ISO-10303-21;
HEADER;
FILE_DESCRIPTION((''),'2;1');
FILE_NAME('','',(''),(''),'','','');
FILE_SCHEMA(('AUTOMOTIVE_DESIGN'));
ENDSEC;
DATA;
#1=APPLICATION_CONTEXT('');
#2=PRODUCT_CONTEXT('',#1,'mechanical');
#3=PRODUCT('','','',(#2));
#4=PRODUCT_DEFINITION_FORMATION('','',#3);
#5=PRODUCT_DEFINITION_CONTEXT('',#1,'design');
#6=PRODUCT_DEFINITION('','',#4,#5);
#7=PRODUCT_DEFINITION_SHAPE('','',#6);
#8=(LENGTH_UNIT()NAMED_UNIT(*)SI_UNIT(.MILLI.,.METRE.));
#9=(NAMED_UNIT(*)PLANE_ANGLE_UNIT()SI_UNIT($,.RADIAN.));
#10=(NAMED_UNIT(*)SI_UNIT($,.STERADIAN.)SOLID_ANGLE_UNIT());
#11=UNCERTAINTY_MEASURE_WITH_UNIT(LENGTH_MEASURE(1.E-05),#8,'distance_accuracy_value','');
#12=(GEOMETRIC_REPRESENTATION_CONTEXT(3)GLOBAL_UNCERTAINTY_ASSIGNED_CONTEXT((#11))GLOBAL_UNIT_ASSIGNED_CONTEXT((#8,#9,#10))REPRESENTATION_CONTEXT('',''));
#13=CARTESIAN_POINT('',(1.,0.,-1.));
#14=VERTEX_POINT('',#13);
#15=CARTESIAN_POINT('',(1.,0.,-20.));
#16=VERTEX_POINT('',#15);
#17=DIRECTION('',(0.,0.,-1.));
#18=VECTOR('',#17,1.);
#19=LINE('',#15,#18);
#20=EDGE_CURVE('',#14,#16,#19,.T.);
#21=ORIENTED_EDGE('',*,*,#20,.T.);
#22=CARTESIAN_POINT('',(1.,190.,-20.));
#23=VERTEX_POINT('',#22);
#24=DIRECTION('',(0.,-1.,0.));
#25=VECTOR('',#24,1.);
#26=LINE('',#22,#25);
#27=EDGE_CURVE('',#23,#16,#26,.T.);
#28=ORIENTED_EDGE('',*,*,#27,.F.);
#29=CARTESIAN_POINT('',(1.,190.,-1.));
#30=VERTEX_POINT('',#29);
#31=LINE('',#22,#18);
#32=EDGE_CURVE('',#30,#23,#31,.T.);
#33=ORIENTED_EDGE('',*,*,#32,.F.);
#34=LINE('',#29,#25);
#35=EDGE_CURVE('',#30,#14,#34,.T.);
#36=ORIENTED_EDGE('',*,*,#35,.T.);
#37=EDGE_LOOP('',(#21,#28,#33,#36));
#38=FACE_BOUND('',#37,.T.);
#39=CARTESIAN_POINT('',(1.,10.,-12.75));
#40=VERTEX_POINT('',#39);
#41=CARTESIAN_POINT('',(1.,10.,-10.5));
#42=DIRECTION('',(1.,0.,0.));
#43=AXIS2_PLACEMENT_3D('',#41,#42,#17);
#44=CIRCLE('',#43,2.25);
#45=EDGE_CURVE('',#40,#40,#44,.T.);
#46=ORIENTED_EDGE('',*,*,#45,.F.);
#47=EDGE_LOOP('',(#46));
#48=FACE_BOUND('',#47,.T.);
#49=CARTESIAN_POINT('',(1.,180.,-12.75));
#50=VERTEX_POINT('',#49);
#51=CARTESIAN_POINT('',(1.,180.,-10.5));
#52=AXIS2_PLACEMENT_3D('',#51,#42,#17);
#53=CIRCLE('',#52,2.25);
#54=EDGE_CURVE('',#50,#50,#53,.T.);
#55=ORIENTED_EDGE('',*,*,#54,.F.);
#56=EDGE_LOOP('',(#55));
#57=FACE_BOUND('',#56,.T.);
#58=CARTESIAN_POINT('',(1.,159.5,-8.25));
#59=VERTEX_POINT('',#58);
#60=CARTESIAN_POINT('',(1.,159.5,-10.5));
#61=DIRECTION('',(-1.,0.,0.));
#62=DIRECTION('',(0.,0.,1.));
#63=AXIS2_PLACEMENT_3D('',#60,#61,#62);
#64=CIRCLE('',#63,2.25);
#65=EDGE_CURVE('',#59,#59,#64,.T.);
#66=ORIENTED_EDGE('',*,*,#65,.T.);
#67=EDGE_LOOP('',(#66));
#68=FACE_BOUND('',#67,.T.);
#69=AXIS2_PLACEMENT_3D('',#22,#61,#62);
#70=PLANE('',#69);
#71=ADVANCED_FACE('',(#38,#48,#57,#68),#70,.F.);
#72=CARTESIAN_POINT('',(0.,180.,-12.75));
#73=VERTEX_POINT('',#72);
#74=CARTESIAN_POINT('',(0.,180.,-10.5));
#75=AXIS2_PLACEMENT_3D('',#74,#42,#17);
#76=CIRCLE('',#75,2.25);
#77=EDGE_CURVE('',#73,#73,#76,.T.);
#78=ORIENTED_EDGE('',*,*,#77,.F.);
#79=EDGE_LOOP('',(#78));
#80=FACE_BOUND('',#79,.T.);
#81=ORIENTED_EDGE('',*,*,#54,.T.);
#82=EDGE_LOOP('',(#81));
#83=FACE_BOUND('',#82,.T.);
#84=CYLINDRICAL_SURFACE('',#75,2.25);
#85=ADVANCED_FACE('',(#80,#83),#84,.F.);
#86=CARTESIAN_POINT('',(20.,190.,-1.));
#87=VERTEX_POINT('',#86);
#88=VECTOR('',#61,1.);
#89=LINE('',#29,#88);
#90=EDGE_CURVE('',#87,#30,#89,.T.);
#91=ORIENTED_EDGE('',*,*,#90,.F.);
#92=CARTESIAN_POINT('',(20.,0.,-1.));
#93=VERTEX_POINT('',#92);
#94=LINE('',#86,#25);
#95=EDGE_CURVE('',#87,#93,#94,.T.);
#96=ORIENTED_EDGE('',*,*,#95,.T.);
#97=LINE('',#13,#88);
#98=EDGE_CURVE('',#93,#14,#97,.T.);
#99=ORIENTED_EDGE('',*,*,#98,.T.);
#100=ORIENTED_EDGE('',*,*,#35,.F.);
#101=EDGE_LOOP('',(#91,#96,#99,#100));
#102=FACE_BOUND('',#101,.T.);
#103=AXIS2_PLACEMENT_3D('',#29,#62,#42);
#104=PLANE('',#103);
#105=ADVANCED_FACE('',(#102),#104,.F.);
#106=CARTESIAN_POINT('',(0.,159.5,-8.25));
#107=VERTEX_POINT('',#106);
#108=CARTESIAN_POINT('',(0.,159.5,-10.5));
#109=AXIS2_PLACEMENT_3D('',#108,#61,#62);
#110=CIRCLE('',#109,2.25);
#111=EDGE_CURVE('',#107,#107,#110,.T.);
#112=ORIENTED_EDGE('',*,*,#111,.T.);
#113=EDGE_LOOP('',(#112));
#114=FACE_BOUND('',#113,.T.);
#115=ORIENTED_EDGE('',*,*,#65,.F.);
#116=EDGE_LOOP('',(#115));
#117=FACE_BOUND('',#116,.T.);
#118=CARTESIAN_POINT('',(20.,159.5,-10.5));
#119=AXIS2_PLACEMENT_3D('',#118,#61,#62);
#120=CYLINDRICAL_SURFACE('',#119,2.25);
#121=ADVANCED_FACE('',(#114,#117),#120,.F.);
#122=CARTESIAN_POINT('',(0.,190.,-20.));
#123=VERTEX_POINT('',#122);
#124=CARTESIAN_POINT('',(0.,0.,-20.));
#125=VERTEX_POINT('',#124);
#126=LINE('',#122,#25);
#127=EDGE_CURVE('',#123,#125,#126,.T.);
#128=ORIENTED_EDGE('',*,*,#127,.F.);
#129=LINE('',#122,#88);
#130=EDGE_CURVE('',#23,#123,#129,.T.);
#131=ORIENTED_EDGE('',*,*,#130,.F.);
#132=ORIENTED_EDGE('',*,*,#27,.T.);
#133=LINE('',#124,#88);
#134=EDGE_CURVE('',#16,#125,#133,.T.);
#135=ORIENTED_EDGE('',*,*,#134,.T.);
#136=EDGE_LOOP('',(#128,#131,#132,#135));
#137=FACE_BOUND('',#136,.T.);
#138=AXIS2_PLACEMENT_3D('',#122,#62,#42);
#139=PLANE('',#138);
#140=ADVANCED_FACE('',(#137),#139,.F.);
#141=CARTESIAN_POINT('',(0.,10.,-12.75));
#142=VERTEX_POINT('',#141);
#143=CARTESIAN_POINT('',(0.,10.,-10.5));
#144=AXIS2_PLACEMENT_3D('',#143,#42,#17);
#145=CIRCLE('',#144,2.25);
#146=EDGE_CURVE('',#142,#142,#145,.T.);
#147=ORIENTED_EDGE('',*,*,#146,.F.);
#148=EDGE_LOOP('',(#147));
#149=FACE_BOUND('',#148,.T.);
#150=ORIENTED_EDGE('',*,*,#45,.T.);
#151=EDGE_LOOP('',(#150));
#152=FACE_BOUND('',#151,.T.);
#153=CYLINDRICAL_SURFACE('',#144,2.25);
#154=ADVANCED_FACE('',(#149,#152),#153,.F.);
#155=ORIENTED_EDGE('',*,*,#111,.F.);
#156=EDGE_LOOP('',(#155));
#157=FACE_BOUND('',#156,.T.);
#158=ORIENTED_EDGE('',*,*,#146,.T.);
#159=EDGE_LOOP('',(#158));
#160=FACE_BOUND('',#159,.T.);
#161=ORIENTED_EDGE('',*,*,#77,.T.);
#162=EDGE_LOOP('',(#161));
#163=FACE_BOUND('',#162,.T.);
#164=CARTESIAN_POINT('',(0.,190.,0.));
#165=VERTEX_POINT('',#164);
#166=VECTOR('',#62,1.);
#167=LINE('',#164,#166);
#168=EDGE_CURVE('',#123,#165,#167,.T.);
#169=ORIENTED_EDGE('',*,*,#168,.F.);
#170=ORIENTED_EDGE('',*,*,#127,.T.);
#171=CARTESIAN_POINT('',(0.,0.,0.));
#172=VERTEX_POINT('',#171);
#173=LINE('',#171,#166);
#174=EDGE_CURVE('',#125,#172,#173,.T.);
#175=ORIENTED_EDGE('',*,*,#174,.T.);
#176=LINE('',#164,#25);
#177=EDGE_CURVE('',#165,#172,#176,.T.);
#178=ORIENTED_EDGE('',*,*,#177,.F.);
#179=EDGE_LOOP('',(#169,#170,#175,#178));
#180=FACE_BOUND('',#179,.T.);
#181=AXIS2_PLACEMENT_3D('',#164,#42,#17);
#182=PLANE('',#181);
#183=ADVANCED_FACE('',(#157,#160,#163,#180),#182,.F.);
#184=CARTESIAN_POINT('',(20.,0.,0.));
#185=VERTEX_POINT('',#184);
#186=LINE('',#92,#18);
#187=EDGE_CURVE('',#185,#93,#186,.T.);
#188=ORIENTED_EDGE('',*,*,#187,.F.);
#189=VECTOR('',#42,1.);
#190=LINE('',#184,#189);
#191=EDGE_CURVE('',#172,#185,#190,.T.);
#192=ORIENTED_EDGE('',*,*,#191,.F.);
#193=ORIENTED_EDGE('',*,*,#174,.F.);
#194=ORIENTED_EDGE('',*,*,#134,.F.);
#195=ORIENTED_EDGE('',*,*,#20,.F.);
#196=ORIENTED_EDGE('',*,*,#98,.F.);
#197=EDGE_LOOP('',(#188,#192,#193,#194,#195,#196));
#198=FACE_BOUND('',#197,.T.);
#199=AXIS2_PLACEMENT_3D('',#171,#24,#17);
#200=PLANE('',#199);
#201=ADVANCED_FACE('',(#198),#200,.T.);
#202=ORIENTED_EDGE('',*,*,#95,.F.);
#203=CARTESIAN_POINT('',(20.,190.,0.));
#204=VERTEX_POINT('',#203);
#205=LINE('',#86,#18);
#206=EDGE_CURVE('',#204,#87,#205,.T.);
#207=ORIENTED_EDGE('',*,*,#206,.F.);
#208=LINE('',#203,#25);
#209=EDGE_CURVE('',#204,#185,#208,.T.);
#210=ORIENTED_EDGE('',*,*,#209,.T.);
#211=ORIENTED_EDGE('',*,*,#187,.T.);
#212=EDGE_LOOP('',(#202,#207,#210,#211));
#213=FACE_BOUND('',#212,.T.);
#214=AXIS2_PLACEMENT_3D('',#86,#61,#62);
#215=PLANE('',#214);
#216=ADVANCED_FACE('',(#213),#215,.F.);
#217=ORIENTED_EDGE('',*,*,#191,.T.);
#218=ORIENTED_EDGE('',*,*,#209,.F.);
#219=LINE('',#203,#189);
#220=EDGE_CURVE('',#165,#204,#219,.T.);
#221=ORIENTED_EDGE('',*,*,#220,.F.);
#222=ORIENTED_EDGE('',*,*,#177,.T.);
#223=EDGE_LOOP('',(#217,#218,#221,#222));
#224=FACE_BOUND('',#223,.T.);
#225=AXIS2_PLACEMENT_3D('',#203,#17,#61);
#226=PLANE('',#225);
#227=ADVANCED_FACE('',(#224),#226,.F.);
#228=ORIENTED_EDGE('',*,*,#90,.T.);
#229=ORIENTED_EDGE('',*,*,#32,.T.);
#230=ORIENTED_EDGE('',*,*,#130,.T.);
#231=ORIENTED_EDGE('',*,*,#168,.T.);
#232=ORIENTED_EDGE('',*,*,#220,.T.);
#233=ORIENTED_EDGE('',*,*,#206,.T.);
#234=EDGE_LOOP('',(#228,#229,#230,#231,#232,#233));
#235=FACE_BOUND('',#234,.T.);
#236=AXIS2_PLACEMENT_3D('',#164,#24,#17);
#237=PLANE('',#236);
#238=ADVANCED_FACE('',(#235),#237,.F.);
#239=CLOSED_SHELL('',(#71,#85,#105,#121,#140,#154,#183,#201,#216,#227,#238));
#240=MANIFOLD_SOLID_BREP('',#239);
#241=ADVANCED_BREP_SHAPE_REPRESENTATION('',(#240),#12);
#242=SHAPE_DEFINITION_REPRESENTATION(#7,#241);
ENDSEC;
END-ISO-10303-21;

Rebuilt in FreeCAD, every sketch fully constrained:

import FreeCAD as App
import Part
import Sketcher

doc = App.newDocument("Part")
body = doc.addObject("PartDesign::Body", "Body")

# Sketch on XZ plane
sketch1 = body.newObject("Sketcher::SketchObject", "Sketch")
sketch1.AttachmentSupport = (doc.getObject("XZ_Plane"), [""])
sketch1.MapMode = "FlatFace"
sketch1.addGeometry(Part.LineSegment(App.Vector(0, -20, 0), App.Vector(0, 0, 0)), False)
sketch1.addGeometry(Part.LineSegment(App.Vector(0, 0, 0), App.Vector(20, 0, 0)), False)
sketch1.addGeometry(Part.LineSegment(App.Vector(20, 0, 0), App.Vector(20, -1, 0)), False)
sketch1.addGeometry(Part.LineSegment(App.Vector(20, -1, 0), App.Vector(1, -1, 0)), False)
sketch1.addGeometry(Part.LineSegment(App.Vector(1, -1, 0), App.Vector(1, -20, 0)), False)
sketch1.addGeometry(Part.LineSegment(App.Vector(1, -20, 0), App.Vector(0, -20, 0)), False)
sketch1.addConstraint(Sketcher.Constraint("Coincident", 0, 2, 1, 1))
sketch1.addConstraint(Sketcher.Constraint("Coincident", 1, 2, 2, 1))
sketch1.addConstraint(Sketcher.Constraint("Coincident", 2, 2, 3, 1))
sketch1.addConstraint(Sketcher.Constraint("Coincident", 3, 2, 4, 1))
sketch1.addConstraint(Sketcher.Constraint("Coincident", 4, 2, 5, 1))
sketch1.addConstraint(Sketcher.Constraint("Coincident", 5, 2, 0, 1))
sketch1.addConstraint(Sketcher.Constraint("Vertical", 0))
sketch1.addConstraint(Sketcher.Constraint("Horizontal", 1))
sketch1.addConstraint(Sketcher.Constraint("Vertical", 2))
sketch1.addConstraint(Sketcher.Constraint("Horizontal", 3))
sketch1.addConstraint(Sketcher.Constraint("Vertical", 4))
sketch1.addConstraint(Sketcher.Constraint("Horizontal", 5))
sketch1.addConstraint(Sketcher.Constraint("Coincident", 0, 2, -1, 1))
sketch1.addConstraint(Sketcher.Constraint("Equal", 1, 0))
sketch1.addConstraint(Sketcher.Constraint("Equal", 5, 2))
sketch1.addConstraint(Sketcher.Constraint("DistanceX", 1, 1, 1, 2, 20.0))
sketch1.addConstraint(Sketcher.Constraint("DistanceX", 3, 2, 3, 1, 19.0))
pad1 = body.newObject("PartDesign::Pad", "Pad")
pad1.Profile = sketch1
pad1.Length = 190
pad1.Reversed = True

# Sketch on YZ plane
sketch2 = body.newObject("Sketcher::SketchObject", "Sketch001")
sketch2.AttachmentSupport = (doc.getObject("YZ_Plane"), [""])
sketch2.MapMode = "FlatFace"
sketch2.AttachmentOffset = App.Placement(App.Vector(0, 0, 1), App.Rotation())
sketch2.addGeometry(Part.Circle(App.Vector(10, -10.5, 0), App.Vector(0, 0, 1), 2.25), False)
sketch2.addGeometry(Part.Circle(App.Vector(180, -10.5, 0), App.Vector(0, 0, 1), 2.25), False)
sketch2.addConstraint(Sketcher.Constraint("Equal", 0, 1))
sketch2.addConstraint(Sketcher.Constraint("Horizontal", 0, 3, 1, 3))
sketch2.addConstraint(Sketcher.Constraint("Diameter", 0, 4.5))
sketch2.addConstraint(Sketcher.Constraint("DistanceX", -1, 1, 0, 3, 10.0))
sketch2.addConstraint(Sketcher.Constraint("DistanceX", -1, 1, 1, 3, 180.0))
sketch2.addConstraint(Sketcher.Constraint("DistanceY", 0, 3, -1, 1, 10.5))
pocket1 = body.newObject("PartDesign::Pocket", "Pocket")
pocket1.Profile = sketch2
pocket1.Type = "ThroughAll"

# Sketch on YZ plane
sketch3 = body.newObject("Sketcher::SketchObject", "Sketch002")
sketch3.AttachmentSupport = (doc.getObject("YZ_Plane"), [""])
sketch3.MapMode = "FlatFace"
sketch3.addGeometry(Part.Circle(App.Vector(159.5, -10.5, 0), App.Vector(0, 0, 1), 2.25), False)
sketch3.addConstraint(Sketcher.Constraint("Diameter", 0, 4.5))
sketch3.addConstraint(Sketcher.Constraint("DistanceX", -1, 1, 0, 3, 159.5))
sketch3.addConstraint(Sketcher.Constraint("DistanceY", 0, 3, -1, 1, 10.5))
pocket2 = body.newObject("PartDesign::Pocket", "Pocket001")
pocket2.Profile = sketch3
pocket2.Type = "ThroughAll"
pocket2.Reversed = True

doc.recompute()
